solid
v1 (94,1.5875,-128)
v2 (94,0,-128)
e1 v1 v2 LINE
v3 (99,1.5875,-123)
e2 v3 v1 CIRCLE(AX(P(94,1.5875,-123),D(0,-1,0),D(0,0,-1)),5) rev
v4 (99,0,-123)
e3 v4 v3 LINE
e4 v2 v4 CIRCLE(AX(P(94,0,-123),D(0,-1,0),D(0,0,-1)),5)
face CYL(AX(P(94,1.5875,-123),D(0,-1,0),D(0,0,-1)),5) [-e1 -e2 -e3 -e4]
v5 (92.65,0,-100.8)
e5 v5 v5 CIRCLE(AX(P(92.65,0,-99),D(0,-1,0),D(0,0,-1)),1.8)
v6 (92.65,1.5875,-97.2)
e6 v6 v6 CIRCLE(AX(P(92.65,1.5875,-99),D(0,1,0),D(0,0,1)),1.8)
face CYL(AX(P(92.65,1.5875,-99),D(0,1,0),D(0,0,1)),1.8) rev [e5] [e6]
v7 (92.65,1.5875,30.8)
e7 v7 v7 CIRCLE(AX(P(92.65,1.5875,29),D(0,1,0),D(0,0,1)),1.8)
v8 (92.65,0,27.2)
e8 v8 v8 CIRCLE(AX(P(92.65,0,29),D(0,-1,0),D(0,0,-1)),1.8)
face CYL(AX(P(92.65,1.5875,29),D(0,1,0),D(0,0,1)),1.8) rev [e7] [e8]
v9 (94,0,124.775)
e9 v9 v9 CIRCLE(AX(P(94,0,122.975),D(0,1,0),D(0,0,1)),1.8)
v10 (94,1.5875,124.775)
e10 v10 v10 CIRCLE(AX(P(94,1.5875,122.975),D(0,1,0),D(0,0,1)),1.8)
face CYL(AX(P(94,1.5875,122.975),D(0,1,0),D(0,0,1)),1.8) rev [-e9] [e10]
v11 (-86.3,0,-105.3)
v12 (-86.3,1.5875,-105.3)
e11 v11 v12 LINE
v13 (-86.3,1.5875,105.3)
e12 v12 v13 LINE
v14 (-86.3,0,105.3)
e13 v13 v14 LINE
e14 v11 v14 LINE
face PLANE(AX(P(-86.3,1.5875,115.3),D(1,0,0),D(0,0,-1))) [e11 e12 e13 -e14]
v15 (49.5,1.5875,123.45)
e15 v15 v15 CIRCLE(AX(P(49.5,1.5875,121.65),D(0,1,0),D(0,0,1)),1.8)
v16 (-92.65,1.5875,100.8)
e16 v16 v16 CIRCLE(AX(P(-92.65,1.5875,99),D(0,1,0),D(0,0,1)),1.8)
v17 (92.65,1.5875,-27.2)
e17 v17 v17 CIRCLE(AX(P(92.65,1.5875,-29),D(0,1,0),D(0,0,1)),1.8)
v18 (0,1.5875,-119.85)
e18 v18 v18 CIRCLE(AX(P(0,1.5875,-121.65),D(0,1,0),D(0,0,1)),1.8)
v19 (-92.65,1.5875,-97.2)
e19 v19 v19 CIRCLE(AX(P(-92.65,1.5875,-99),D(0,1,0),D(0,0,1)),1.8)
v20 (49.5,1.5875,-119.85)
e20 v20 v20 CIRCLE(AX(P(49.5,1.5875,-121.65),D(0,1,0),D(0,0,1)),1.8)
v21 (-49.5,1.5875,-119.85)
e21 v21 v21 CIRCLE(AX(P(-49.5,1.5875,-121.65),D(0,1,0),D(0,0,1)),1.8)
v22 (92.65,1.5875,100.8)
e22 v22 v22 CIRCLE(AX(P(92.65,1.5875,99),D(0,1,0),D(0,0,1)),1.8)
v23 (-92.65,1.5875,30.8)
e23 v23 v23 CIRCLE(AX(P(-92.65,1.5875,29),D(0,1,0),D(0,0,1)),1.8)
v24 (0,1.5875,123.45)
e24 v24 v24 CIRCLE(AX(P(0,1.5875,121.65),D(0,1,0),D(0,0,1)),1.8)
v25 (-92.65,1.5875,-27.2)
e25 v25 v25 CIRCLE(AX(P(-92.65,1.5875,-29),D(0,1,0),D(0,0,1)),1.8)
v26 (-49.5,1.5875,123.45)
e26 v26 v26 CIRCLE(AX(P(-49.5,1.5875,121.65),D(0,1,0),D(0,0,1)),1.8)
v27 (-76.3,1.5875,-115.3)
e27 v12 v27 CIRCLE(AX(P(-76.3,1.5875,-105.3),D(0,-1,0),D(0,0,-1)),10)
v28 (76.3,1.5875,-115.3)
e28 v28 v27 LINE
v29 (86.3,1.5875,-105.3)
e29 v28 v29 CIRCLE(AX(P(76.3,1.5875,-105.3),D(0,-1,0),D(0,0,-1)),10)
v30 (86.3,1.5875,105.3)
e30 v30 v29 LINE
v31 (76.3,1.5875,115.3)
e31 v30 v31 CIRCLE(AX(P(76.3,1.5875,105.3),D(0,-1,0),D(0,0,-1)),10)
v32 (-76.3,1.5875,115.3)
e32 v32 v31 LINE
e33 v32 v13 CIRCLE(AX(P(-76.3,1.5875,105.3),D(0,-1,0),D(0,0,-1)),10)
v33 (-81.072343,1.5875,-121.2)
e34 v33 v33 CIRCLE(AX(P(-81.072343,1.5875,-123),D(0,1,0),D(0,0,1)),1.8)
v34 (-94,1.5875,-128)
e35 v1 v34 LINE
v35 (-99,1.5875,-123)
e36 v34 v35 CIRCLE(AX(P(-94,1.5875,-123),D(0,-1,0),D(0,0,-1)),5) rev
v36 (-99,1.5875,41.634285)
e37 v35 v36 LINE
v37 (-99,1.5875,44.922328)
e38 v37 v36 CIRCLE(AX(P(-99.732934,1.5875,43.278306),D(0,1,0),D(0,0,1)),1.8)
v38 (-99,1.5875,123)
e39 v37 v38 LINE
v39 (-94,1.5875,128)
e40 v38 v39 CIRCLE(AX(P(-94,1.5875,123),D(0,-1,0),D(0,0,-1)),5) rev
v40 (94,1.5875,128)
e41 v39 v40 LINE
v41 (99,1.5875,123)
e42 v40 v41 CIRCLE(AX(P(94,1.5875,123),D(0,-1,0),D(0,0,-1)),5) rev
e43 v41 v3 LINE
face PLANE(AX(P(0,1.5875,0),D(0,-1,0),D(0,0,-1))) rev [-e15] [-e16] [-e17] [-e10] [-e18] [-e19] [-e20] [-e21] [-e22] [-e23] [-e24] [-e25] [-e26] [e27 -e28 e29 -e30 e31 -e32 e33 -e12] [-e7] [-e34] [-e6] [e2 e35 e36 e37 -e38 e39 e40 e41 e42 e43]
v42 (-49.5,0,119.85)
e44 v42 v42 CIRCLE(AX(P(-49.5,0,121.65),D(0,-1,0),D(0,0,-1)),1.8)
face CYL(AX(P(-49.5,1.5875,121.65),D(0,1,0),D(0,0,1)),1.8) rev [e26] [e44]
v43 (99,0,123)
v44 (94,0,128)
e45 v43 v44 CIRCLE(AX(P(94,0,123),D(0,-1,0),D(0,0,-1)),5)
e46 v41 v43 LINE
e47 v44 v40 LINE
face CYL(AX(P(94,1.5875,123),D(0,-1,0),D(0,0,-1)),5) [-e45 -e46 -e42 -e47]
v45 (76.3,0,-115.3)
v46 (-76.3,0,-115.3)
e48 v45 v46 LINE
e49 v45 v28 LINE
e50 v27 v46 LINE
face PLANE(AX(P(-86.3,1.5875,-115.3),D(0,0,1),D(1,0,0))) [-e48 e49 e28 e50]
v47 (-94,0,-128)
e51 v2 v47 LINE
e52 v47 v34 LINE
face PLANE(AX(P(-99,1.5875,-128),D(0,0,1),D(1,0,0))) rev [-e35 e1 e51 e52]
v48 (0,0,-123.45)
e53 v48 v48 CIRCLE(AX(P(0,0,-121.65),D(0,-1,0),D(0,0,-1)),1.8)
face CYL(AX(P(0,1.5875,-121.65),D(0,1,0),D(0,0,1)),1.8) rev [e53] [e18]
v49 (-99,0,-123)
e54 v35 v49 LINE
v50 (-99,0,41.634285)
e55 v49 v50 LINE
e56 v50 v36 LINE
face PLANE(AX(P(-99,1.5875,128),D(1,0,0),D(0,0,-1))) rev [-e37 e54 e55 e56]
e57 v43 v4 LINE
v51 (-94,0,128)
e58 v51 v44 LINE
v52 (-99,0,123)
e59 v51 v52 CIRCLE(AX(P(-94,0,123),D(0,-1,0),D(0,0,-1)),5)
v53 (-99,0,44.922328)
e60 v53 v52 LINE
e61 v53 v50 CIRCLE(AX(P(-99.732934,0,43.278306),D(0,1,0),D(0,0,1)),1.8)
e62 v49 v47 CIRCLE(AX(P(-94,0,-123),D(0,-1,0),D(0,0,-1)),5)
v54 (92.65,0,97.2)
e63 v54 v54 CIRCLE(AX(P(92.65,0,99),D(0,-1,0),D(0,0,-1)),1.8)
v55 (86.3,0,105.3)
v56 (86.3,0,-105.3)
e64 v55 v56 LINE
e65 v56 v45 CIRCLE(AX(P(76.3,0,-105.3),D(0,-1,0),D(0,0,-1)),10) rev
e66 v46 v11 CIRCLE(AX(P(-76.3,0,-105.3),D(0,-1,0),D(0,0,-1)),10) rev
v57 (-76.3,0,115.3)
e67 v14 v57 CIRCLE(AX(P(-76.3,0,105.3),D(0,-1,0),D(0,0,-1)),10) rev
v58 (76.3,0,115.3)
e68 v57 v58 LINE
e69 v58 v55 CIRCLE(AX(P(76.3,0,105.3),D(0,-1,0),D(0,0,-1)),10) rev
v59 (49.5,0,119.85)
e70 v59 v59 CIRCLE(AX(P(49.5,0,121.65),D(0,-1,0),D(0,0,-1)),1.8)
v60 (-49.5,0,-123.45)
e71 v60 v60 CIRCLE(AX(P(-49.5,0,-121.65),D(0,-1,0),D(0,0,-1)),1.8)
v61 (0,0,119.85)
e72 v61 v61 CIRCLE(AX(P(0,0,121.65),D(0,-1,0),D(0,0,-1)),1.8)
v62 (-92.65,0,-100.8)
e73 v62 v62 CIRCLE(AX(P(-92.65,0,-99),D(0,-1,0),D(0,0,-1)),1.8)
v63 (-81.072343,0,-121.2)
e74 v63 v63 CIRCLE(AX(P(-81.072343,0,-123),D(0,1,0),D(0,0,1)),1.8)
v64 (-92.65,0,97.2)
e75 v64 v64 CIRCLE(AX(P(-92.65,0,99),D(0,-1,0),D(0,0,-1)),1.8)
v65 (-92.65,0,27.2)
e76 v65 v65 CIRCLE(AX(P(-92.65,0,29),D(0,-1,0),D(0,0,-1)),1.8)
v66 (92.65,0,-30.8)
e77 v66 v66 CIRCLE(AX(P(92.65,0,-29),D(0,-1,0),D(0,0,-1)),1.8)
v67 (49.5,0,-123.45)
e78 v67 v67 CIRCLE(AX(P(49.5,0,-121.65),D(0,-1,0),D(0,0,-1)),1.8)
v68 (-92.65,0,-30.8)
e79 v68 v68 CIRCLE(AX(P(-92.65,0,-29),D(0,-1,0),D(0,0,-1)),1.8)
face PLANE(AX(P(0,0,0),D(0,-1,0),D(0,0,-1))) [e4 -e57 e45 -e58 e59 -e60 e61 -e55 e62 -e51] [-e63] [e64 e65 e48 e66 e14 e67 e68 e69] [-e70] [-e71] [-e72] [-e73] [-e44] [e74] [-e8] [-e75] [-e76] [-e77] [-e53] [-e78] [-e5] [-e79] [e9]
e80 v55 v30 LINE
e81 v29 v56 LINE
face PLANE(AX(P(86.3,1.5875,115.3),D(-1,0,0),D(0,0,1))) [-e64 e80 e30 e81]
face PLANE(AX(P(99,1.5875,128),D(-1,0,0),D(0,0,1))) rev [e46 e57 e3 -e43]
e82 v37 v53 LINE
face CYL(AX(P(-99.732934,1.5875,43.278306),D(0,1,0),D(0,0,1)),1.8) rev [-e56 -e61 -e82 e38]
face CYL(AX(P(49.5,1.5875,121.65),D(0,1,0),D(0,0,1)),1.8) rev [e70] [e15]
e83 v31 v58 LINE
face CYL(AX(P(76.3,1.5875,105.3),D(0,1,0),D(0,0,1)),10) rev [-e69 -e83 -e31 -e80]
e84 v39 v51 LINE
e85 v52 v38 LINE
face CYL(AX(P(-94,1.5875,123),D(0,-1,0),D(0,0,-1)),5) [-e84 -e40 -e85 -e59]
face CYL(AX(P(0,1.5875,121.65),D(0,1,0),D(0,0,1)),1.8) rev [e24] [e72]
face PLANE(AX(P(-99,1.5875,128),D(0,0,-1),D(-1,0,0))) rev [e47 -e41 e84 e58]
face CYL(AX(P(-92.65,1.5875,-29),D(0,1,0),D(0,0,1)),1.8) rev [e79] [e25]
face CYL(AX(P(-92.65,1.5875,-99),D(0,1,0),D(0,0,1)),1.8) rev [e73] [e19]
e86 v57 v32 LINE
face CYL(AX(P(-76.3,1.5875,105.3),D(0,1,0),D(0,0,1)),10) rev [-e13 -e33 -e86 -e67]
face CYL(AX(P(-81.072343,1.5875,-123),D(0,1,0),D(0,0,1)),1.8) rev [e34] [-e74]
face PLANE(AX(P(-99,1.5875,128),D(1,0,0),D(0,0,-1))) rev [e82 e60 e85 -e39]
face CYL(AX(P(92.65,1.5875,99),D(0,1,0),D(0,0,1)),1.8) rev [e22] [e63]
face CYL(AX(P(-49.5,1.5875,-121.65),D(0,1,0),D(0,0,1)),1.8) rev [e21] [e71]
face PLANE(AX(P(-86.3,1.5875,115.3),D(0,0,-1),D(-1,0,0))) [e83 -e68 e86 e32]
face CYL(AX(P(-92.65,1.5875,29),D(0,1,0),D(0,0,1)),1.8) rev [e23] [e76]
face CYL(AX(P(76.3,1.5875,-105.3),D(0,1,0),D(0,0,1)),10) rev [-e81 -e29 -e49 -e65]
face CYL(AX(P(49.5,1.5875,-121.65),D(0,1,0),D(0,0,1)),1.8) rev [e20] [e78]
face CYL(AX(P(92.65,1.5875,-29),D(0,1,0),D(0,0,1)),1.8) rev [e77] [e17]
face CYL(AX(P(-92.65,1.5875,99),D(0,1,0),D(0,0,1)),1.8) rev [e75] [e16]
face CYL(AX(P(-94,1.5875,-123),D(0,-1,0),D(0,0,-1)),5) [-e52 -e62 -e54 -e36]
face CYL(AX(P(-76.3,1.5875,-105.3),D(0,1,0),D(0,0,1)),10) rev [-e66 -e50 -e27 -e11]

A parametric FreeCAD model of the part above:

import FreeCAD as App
import Part
import Sketcher

V = App.Vector
Q = App.Units.Quantity


def edges_at(feature, points):
    """Names of the edges that pass closest to the given points."""
    edges = feature.Shape.Edges
    near = lambda p: min(range(len(edges)), key=lambda i: edges[i].distToShape(Part.Vertex(*p))[0])
    return sorted({f"Edge{near(p) + 1}" for p in points})


def add_polygon(sketch, points):
    """Adds a closed chain of lines whose ends are joined by coincident constraints."""
    first, n = sketch.GeometryCount, len(points)
    for a, b in zip(points, points[1:] + points[:1]):
        sketch.addGeometry(Part.LineSegment(App.Vector(*a, 0), App.Vector(*b, 0)), False)
    for i in range(n):
        sketch.addConstraint(Sketcher.Constraint("Coincident", first + i, 2, first + (i + 1) % n, 1))

doc = App.newDocument("Part")
params = doc.addObject("Spreadsheet::Sheet", "Params")
for row, (alias, value) in enumerate([
    ("sketch1_width", "198 mm"),
    ("sketch1_height", "256 mm"),
    ("sketch1_width2", "172.6 mm"),
    ("sketch1_height2", "230.6 mm"),
    ("pad1_length", "1.5875 mm"),
    ("sketch2_diameter", "3.6 mm"),
    ("hole_diameter", "3.6 mm"),
    ("fillet_radius", "10 mm"),
    ("fillet2_radius", "5 mm"),
    ("sketch3_diameter", "3.6 mm"),
    ("hole2_diameter", "3.6 mm"),
], start=1):
    params.set(f"A{row}", alias)
    params.set(f"B{row}", "=" + value)
    params.setAlias(f"B{row}", alias)

body = doc.addObject("PartDesign::Body", "Body")

# Sketch on XZ plane
sketch1 = body.newObject("Sketcher::SketchObject", "Sketch")
sketch1.AttachmentSupport = (doc.getObject("XZ_Plane"), [""])
sketch1.MapMode = "FlatFace"
add_polygon(sketch1, [(-99, -128), (-99, 128), (99, 128), (99, -128)])  # lines 0-3
add_polygon(sketch1, [(86.3, 115.3), (-86.3, 115.3), (-86.3, -115.3), (86.3, -115.3)])  # lines 4-7
sketch1.addConstraint([
    Sketcher.Constraint("Vertical", 0),
    Sketcher.Constraint("Horizontal", 1),
    Sketcher.Constraint("Vertical", 2),
    Sketcher.Constraint("Horizontal", 3),
    Sketcher.Constraint("Horizontal", 4),
    Sketcher.Constraint("Vertical", 5),
    Sketcher.Constraint("Horizontal", 6),
    Sketcher.Constraint("Vertical", 7),
    Sketcher.Constraint("Symmetric", 0, 2, 2, 2, -1, 1),
    Sketcher.Constraint("Symmetric", 4, 2, 6, 2, -1, 1),
    Sketcher.Constraint("DistanceX", 1, 1, 1, 2, Q("198 mm")),
    Sketcher.Constraint("DistanceY", 0, 1, 0, 2, Q("256 mm")),
    Sketcher.Constraint("DistanceX", 4, 2, 4, 1, Q("172.6 mm")),
    Sketcher.Constraint("DistanceY", 5, 2, 5, 1, Q("230.6 mm")),
])
sketch1.setExpression("Constraints[18]", "Params.sketch1_width")
sketch1.setExpression("Constraints[19]", "Params.sketch1_height")
sketch1.setExpression("Constraints[20]", "Params.sketch1_width2")
sketch1.setExpression("Constraints[21]", "Params.sketch1_height2")
pad1 = body.newObject("PartDesign::Pad", "Pad")
pad1.Profile = sketch1
pad1.setExpression("Length", "Params.pad1_length")
pad1.Reversed = True

# Sketch on XZ plane
sketch2 = body.newObject("Sketcher::SketchObject", "Sketch001")
sketch2.AttachmentSupport = (doc.getObject("XZ_Plane"), [""])
sketch2.MapMode = "FlatFace"
sketch2.AttachmentOffset = App.Placement(V(0, 0, -1.5875), App.Rotation())
sketch2.addGeometry([
    Part.Circle(V(-92.65, -99, 0), V(0, 0, 1), 1.8),  # 0
    Part.Circle(V(-92.65, -29, 0), V(0, 0, 1), 1.8),  # 1
    Part.Circle(V(-92.65, 29, 0), V(0, 0, 1), 1.8),  # 2
    Part.Circle(V(-92.65, 99, 0), V(0, 0, 1), 1.8),  # 3
    Part.Circle(V(92.65, 99, 0), V(0, 0, 1), 1.8),  # 4
    Part.Circle(V(92.65, 29, 0), V(0, 0, 1), 1.8),  # 5
    Part.Circle(V(92.65, -29, 0), V(0, 0, 1), 1.8),  # 6
    Part.Circle(V(92.65, -99, 0), V(0, 0, 1), 1.8),  # 7
    Part.Circle(V(0, -121.65, 0), V(0, 0, 1), 1.8),  # 8
    Part.Circle(V(-49.5, -121.65, 0), V(0, 0, 1), 1.8),  # 9
    Part.Circle(V(49.5, 121.65, 0), V(0, 0, 1), 1.8),  # 10
    Part.Circle(V(0, 121.65, 0), V(0, 0, 1), 1.8),  # 11
    Part.Circle(V(-49.5, 121.65, 0), V(0, 0, 1), 1.8),  # 12
    Part.Circle(V(49.5, -121.65, 0), V(0, 0, 1), 1.8),  # 13
], False)
sketch2.addConstraint([
    Sketcher.Constraint("Equal", 0, 1),
    Sketcher.Constraint("Equal", 1, 2),
    Sketcher.Constraint("Equal", 2, 3),
    Sketcher.Constraint("Equal", 3, 4),
    Sketcher.Constraint("Equal", 4, 5),
    Sketcher.Constraint("Equal", 5, 6),
    Sketcher.Constraint("Equal", 6, 7),
    Sketcher.Constraint("Equal", 7, 8),
    Sketcher.Constraint("Equal", 8, 9),
    Sketcher.Constraint("Equal", 9, 10),
    Sketcher.Constraint("Equal", 10, 11),
    Sketcher.Constraint("Equal", 11, 12),
    Sketcher.Constraint("Equal", 12, 13),
    Sketcher.Constraint("Symmetric", 0, 3, 4, 3, -1, 1),
    Sketcher.Constraint("Symmetric", 1, 3, 5, 3, -1, 1),
    Sketcher.Constraint("Symmetric", 2, 3, 6, 3, -1, 1),
    Sketcher.Constraint("Symmetric", 3, 3, 7, 3, -1, 1),
    Sketcher.Constraint("Symmetric", 9, 3, 10, 3, -1, 1),
    Sketcher.Constraint("Symmetric", 8, 3, 11, 3, -1, 1),
    Sketcher.Constraint("Symmetric", 12, 3, 13, 3, -1, 1),
    Sketcher.Constraint("Symmetric", 3, 3, 4, 3, -2),
    Sketcher.Constraint("Symmetric", 2, 3, 5, 3, -2),
    Sketcher.Constraint("Symmetric", 10, 3, 12, 3, -2),
    Sketcher.Constraint("PointOnObject", 8, 3, -2),
    Sketcher.Constraint("Horizontal", 8, 3, 9, 3),
    Sketcher.Constraint("Vertical", 0, 3, 1, 3),
    Sketcher.Constraint("Diameter", 0, Q("3.6 mm")),
    Sketcher.Constraint("DistanceY", 0, 3, -1, 1, Q("99 mm")),
    Sketcher.Constraint("DistanceY", 1, 3, -1, 1, Q("29 mm")),
    Sketcher.Constraint("DistanceX", 12, 3, 10, 3, Q("99 mm")),
    Sketcher.Constraint("DistanceX", 3, 3, 4, 3, Q("185.3 mm")),
    Sketcher.Constraint("DistanceY", 8, 3, -1, 1, Q("121.65 mm")),
])
sketch2.setExpression("Constraints[26]", "Params.sketch2_diameter")
doc.recompute()
hole = body.newObject("PartDesign::Hole", "Hole")
hole.Profile = sketch2
hole.ThreadType = "None"
hole.setExpression("Diameter", "Params.hole_diameter")
hole.DepthType = "ThroughAll"
hole.Reversed = True
doc.recompute()

fillet = body.newObject("PartDesign::Fillet", "Fillet")
fillet.Base = (hole, edges_at(hole, [
    (86.3, 0.794, 115.3),
    (86.3, 0.794, -115.3),
    (-86.3, 0.794, -115.3),
    (-86.3, 0.794, 115.3),
]))
fillet.setExpression("Radius", "Params.fillet_radius")
doc.recompute()

fillet2 = body.newObject("PartDesign::Fillet", "Fillet001")
fillet2.Base = (fillet, edges_at(fillet, [
    (99, 0.794, 128),
    (-99, 0.794, 128),
    (-99, 0.794, -128),
    (99, 0.794, -128),
]))
fillet2.setExpression("Radius", "Params.fillet2_radius")

# Sketch on XZ plane
sketch3 = body.newObject("Sketcher::SketchObject", "Sketch002")
sketch3.AttachmentSupport = (doc.getObject("XZ_Plane"), [""])
sketch3.MapMode = "FlatFace"
sketch3.AttachmentOffset = App.Placement(V(0, 0, -1.5875), App.Rotation())
sketch3.addGeometry([
    Part.Circle(V(-81.072343, -123, 0), V(0, 0, 1), 1.8),
    Part.Circle(V(106.927657, -123, 0), V(0, 0, 1), 1.8),
    Part.Circle(V(94, 122.975, 0), V(0, 0, 1), 1.8),
    Part.Circle(V(-99.732934, 43.278306, 0), V(0, 0, 1), 1.8),
], False)
sketch3.addConstraint([
    Sketcher.Constraint("Equal", 0, 1),
    Sketcher.Constraint("Equal", 1, 2),
    Sketcher.Constraint("Equal", 2, 3),
    Sketcher.Constraint("Horizontal", 0, 3, 1, 3),
    Sketcher.Constraint("Diameter", 0, Q("3.6 mm")),
    Sketcher.Constraint("DistanceY", 0, 3, -1, 1, Q("123 mm")),
    Sketcher.Constraint("DistanceX", -1, 1, 2, 3, Q("94 mm")),
    Sketcher.Constraint("DistanceX", 0, 3, 1, 3, Q("188 mm")),
    Sketcher.Constraint("DistanceY", -1, 1, 2, 3, Q("122.975 mm")),
    Sketcher.Constraint("DistanceX", 3, 3, 0, 3, Q("18.660591 mm")),
    Sketcher.Constraint("DistanceX", 0, 3, -1, 1, Q("81.072343 mm")),
    Sketcher.Constraint("DistanceY", -1, 1, 3, 3, Q("43.278306 mm")),
])
sketch3.setExpression("Constraints[4]", "Params.sketch3_diameter")
doc.recompute()
hole2 = body.newObject("PartDesign::Hole", "Hole001")
hole2.Profile = sketch3
hole2.ThreadType = "None"
hole2.setExpression("Diameter", "Params.hole2_diameter")
hole2.DepthType = "ThroughAll"
hole2.Reversed = True

doc.recompute()
